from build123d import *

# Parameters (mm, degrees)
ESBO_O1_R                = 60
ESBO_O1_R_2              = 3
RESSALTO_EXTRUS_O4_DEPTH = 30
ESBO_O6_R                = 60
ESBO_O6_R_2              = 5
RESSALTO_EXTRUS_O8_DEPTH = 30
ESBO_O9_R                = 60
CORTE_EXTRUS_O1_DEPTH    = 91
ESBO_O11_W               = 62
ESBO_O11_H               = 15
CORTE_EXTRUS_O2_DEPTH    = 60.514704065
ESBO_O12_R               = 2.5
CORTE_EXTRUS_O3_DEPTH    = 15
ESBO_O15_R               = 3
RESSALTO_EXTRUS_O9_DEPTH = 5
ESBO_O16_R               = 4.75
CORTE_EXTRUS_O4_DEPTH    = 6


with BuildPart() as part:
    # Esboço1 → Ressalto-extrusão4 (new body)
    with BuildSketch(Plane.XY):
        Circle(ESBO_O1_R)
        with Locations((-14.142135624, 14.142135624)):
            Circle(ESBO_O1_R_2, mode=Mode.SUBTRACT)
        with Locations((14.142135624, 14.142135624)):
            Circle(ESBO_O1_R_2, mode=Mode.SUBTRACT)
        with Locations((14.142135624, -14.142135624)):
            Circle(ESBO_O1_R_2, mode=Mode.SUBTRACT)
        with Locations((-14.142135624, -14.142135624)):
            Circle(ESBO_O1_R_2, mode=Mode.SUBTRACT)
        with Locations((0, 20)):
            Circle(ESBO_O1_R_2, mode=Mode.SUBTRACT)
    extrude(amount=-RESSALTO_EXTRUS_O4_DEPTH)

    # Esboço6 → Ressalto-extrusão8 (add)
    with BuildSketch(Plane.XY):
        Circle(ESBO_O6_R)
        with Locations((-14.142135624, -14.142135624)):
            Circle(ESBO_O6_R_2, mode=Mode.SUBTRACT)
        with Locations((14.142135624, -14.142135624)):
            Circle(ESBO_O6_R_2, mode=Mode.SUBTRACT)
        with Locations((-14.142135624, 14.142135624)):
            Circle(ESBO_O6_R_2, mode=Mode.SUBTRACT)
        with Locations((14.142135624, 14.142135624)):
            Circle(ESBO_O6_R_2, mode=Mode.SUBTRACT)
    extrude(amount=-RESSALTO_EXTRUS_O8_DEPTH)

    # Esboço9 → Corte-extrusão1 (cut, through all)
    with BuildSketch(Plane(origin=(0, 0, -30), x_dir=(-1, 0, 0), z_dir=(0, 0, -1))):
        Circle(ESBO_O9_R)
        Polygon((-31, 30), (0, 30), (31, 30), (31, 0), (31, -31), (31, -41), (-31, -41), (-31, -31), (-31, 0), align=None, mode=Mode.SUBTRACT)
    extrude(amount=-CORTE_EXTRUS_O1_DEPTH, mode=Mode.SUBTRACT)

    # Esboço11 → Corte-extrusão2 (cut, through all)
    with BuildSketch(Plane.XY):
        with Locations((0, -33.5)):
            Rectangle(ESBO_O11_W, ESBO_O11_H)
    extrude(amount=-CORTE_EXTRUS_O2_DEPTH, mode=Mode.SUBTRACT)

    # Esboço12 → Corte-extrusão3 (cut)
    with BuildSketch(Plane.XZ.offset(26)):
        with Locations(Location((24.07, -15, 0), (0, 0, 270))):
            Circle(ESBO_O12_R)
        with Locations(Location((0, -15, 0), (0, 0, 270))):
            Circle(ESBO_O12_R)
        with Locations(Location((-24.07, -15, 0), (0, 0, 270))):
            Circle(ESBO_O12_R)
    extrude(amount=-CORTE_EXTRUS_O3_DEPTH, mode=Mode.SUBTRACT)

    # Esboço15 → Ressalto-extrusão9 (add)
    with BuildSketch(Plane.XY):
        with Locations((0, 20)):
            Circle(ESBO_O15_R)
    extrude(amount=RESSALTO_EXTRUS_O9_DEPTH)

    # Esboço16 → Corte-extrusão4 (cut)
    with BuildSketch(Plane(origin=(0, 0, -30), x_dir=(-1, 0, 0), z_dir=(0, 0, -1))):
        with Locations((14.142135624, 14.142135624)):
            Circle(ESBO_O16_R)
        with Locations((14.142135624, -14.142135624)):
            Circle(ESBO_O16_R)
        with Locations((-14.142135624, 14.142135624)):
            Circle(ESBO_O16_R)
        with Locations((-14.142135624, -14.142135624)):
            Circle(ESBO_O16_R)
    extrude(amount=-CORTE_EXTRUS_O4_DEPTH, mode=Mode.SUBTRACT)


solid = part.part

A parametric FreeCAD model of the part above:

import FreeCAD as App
import Part
import Sketcher
from FreeCAD import Vector
Q = App.Units.Quantity


def add_polygon(sketch, points):
    """Adds a closed chain of lines whose ends are joined by coincident constraints."""
    first, n = sketch.GeometryCount, len(points)
    for a, b in zip(points, points[1:] + points[:1]):
        sketch.addGeometry(Part.LineSegment(App.Vector(*a, 0), App.Vector(*b, 0)), False)
    for i in range(n):
        sketch.addConstraint(Sketcher.Constraint("Coincident", first + i, 2, first + (i + 1) % n, 1))

doc = App.newDocument("Part")
body = doc.addObject("PartDesign::Body", "Body")

sketch1 = doc.addObject("Sketcher::SketchObject", "Sketch")
body.addObject(sketch1)
sketch1.AttachmentSupport = (doc.XY_Plane, [""])
sketch1.MapMode = "FlatFace"
sketch1.addGeometry([
    Part.Circle(Vector(0, 0, 0), Vector(0, 0, 1), 60),
    Part.Circle(Vector(-14.142136, -14.142136, 0), Vector(0, 0, 1), 3),
    Part.Circle(Vector(14.142136, -14.142136, 0), Vector(0, 0, 1), 3),
    Part.Circle(Vector(-14.142136, 14.142136, 0), Vector(0, 0, 1), 3),
    Part.Circle(Vector(0, 20, 0), Vector(0, 0, 1), 3),
    Part.Circle(Vector(14.142136, 14.142136, 0), Vector(0, 0, 1), 3),
], False)
sketch1.addConstraint([
    Sketcher.Constraint("Coincident", 0, 3, -1, 1),
    Sketcher.Constraint("Equal", 1, 2),
    Sketcher.Constraint("Equal", 2, 3),
    Sketcher.Constraint("Equal", 3, 4),
    Sketcher.Constraint("Equal", 4, 5),
    Sketcher.Constraint("Symmetric", 2, 3, 3, 3, -1, 1),
    Sketcher.Constraint("Symmetric", 1, 3, 5, 3, -1, 1),
    Sketcher.Constraint("Symmetric", 1, 3, 2, 3, -2),
    Sketcher.Constraint("PointOnObject", 4, 3, -2),
    Sketcher.Constraint("Diameter", 0, Q("120 mm")),
    Sketcher.Constraint("Diameter", 1, Q("6 mm")),
    Sketcher.Constraint("DistanceY", -1, 1, 4, 3, Q("20 mm")),
    Sketcher.Constraint("DistanceX", 1, 3, 2, 3, Q("28.284271 mm")),
    Sketcher.Constraint("DistanceY", 1, 3, 3, 3, Q("28.284271 mm")),
])
pad1 = doc.addObject("PartDesign::Pad", "Pad")
body.addObject(pad1)
pad1.Profile = sketch1
pad1.Length = 30
pad1.Reversed = True

sketch2 = doc.addObject("Sketcher::SketchObject", "Sketch001")
body.addObject(sketch2)
sketch2.AttachmentSupport = (doc.XY_Plane, [""])
sketch2.MapMode = "FlatFace"
sketch2.addGeometry([
    Part.Circle(Vector(0, 0, 0), Vector(0, 0, 1), 60),
    Part.Circle(Vector(-14.142136, -14.142136, 0), Vector(0, 0, 1), 5),
    Part.Circle(Vector(14.142136, -14.142136, 0), Vector(0, 0, 1), 5),
    Part.Circle(Vector(-14.142136, 14.142136, 0), Vector(0, 0, 1), 5),
    Part.Circle(Vector(14.142136, 14.142136, 0), Vector(0, 0, 1), 5),
], False)
sketch2.addConstraint([
    Sketcher.Constraint("Coincident", 0, 3, -1, 1),
    Sketcher.Constraint("Equal", 1, 2),
    Sketcher.Constraint("Equal", 2, 3),
    Sketcher.Constraint("Equal", 3, 4),
    Sketcher.Constraint("Symmetric", 2, 3, 3, 3, -1, 1),
    Sketcher.Constraint("Symmetric", 1, 3, 4, 3, -1, 1),
    Sketcher.Constraint("Symmetric", 1, 3, 2, 3, -2),
    Sketcher.Constraint("Diameter", 0, Q("120 mm")),
    Sketcher.Constraint("Diameter", 1, Q("10 mm")),
    Sketcher.Constraint("DistanceX", 1, 3, 2, 3, Q("28.284271 mm")),
    Sketcher.Constraint("DistanceY", 1, 3, 3, 3, Q("28.284271 mm")),
])
pad2 = doc.addObject("PartDesign::Pad", "Pad001")
body.addObject(pad2)
pad2.Profile = sketch2
pad2.Length = 30
pad2.Reversed = True

sketch3 = doc.addObject("Sketcher::SketchObject", "Sketch002")
body.addObject(sketch3)
sketch3.AttachmentSupport = (doc.XY_Plane, [""])
sketch3.MapMode = "FlatFace"
sketch3.AttachmentOffset = App.Placement(Vector(0, 0, -30), App.Rotation())
sketch3.addGeometry(Part.Circle(Vector(0, 0, 0), Vector(0, 0, 1), 60), False)
add_polygon(sketch3, [(31, -41), (31, 30), (-31, 30), (-31, -41)])
sketch3.addConstraint([
    Sketcher.Constraint("Vertical", 1),
    Sketcher.Constraint("Horizontal", 2),
    Sketcher.Constraint("Vertical", 3),
    Sketcher.Constraint("Horizontal", 4),
    Sketcher.Constraint("Coincident", 0, 3, -1, 1),
    Sketcher.Constraint("Diameter", 0, Q("120 mm")),
    Sketcher.Constraint("DistanceX", 2, 2, 2, 1, Q("62 mm")),
    Sketcher.Constraint("DistanceY", 1, 1, 1, 2, Q("71 mm")),
    Sketcher.Constraint("DistanceX", -1, 1, 1, 2, Q("31 mm")),
    Sketcher.Constraint("DistanceY", -1, 1, 1, 2, Q("30 mm")),
])
pocket1 = doc.addObject("PartDesign::Pocket", "Pocket")
body.addObject(pocket1)
pocket1.Profile = sketch3
pocket1.Type = "ThroughAll"
pocket1.Reversed = True

sketch4 = doc.addObject("Sketcher::SketchObject", "Sketch003")
body.addObject(sketch4)
sketch4.AttachmentSupport = (doc.XY_Plane, [""])
sketch4.MapMode = "FlatFace"
add_polygon(sketch4, [(-31, -26), (-31, -41), (31, -41), (31, -26)])
sketch4.addConstraint([
    Sketcher.Constraint("Vertical", 0),
    Sketcher.Constraint("Horizontal", 1),
    Sketcher.Constraint("Vertical", 2),
    Sketcher.Constraint("Horizontal", 3),
    Sketcher.Constraint("DistanceX", 1, 1, 1, 2, Q("62 mm")),
    Sketcher.Constraint("DistanceY", 0, 2, 0, 1, Q("15 mm")),
    Sketcher.Constraint("DistanceX", 0, 2, -1, 1, Q("31 mm")),
    Sketcher.Constraint("DistanceY", 0, 2, -1, 1, Q("41 mm")),
])
pocket2 = doc.addObject("PartDesign::Pocket", "Pocket001")
body.addObject(pocket2)
pocket2.Profile = sketch4
pocket2.Type = "ThroughAll"

sketch5 = doc.addObject("Sketcher::SketchObject", "Sketch004")
body.addObject(sketch5)
sketch5.AttachmentSupport = (doc.XZ_Plane, [""])
sketch5.MapMode = "FlatFace"
sketch5.AttachmentOffset = App.Placement(Vector(0, 0, 26), App.Rotation())
sketch5.addGeometry([
    Part.Circle(Vector(24.07, -15, 0), Vector(0, 0, 1), 2.5),
    Part.Circle(Vector(0, -15, 0), Vector(0, 0, 1), 2.5),
    Part.Circle(Vector(-24.07, -15, 0), Vector(0, 0, 1), 2.5),
], False)
sketch5.addConstraint([
    Sketcher.Constraint("Equal", 0, 1),
    Sketcher.Constraint("Equal", 1, 2),
    Sketcher.Constraint("Symmetric", 0, 3, 2, 3, -2),
    Sketcher.Constraint("PointOnObject", 1, 3, -2),
    Sketcher.Constraint("Horizontal", 0, 3, 1, 3),
    Sketcher.Constraint("Diameter", 0, Q("5 mm")),
    Sketcher.Constraint("DistanceY", 0, 3, -1, 1, Q("15 mm")),
    Sketcher.Constraint("DistanceX", -1, 1, 0, 3, Q("24.07 mm")),
])
pocket3 = doc.addObject("PartDesign::Pocket", "Pocket002")
body.addObject(pocket3)
pocket3.Profile = sketch5
pocket3.Length = 15

sketch6 = doc.addObject("Sketcher::SketchObject", "Sketch005")
body.addObject(sketch6)
sketch6.AttachmentSupport = (doc.XY_Plane, [""])
sketch6.MapMode = "FlatFace"
sketch6.addGeometry(Part.Circle(Vector(0, 20, 0), Vector(0, 0, 1), 3), False)
sketch6.addConstraint([
    Sketcher.Constraint("PointOnObject", 0, 3, -2),
    Sketcher.Constraint("Diameter", 0, Q("6 mm")),
    Sketcher.Constraint("DistanceY", -1, 1, 0, 3, Q("20 mm")),
])
pad3 = doc.addObject("PartDesign::Pad", "Pad002")
body.addObject(pad3)
pad3.Profile = sketch6
pad3.Length = 5

sketch7 = doc.addObject("Sketcher::SketchObject", "Sketch006")
body.addObject(sketch7)
sketch7.AttachmentSupport = (doc.XY_Plane, [""])
sketch7.MapMode = "FlatFace"
sketch7.AttachmentOffset = App.Placement(Vector(0, 0, -30), App.Rotation())
sketch7.addGeometry([
    Part.Circle(Vector(-14.142136, 14.142136, 0), Vector(0, 0, 1), 4.75),
    Part.Circle(Vector(-14.142136, -14.142136, 0), Vector(0, 0, 1), 4.75),
    Part.Circle(Vector(14.142136, 14.142136, 0), Vector(0, 0, 1), 4.75),
    Part.Circle(Vector(14.142136, -14.142136, 0), Vector(0, 0, 1), 4.75),
], False)
sketch7.addConstraint([
    Sketcher.Constraint("Equal", 0, 1),
    Sketcher.Constraint("Equal", 1, 2),
    Sketcher.Constraint("Equal", 2, 3),
    Sketcher.Constraint("Symmetric", 1, 3, 2, 3, -1, 1),
    Sketcher.Constraint("Symmetric", 0, 3, 3, 3, -1, 1),
    Sketcher.Constraint("Symmetric", 0, 3, 2, 3, -2),
    Sketcher.Constraint("Diameter", 0, Q("9.5 mm")),
    Sketcher.Constraint("DistanceY", 1, 3, 0, 3, Q("28.284271 mm")),
    Sketcher.Constraint("DistanceX", 0, 3, 2, 3, Q("28.284271 mm")),
])
pocket4 = doc.addObject("PartDesign::Pocket", "Pocket003")
body.addObject(pocket4)
pocket4.Profile = sketch7
pocket4.Length = 6
pocket4.Reversed = True

doc.recompute()
